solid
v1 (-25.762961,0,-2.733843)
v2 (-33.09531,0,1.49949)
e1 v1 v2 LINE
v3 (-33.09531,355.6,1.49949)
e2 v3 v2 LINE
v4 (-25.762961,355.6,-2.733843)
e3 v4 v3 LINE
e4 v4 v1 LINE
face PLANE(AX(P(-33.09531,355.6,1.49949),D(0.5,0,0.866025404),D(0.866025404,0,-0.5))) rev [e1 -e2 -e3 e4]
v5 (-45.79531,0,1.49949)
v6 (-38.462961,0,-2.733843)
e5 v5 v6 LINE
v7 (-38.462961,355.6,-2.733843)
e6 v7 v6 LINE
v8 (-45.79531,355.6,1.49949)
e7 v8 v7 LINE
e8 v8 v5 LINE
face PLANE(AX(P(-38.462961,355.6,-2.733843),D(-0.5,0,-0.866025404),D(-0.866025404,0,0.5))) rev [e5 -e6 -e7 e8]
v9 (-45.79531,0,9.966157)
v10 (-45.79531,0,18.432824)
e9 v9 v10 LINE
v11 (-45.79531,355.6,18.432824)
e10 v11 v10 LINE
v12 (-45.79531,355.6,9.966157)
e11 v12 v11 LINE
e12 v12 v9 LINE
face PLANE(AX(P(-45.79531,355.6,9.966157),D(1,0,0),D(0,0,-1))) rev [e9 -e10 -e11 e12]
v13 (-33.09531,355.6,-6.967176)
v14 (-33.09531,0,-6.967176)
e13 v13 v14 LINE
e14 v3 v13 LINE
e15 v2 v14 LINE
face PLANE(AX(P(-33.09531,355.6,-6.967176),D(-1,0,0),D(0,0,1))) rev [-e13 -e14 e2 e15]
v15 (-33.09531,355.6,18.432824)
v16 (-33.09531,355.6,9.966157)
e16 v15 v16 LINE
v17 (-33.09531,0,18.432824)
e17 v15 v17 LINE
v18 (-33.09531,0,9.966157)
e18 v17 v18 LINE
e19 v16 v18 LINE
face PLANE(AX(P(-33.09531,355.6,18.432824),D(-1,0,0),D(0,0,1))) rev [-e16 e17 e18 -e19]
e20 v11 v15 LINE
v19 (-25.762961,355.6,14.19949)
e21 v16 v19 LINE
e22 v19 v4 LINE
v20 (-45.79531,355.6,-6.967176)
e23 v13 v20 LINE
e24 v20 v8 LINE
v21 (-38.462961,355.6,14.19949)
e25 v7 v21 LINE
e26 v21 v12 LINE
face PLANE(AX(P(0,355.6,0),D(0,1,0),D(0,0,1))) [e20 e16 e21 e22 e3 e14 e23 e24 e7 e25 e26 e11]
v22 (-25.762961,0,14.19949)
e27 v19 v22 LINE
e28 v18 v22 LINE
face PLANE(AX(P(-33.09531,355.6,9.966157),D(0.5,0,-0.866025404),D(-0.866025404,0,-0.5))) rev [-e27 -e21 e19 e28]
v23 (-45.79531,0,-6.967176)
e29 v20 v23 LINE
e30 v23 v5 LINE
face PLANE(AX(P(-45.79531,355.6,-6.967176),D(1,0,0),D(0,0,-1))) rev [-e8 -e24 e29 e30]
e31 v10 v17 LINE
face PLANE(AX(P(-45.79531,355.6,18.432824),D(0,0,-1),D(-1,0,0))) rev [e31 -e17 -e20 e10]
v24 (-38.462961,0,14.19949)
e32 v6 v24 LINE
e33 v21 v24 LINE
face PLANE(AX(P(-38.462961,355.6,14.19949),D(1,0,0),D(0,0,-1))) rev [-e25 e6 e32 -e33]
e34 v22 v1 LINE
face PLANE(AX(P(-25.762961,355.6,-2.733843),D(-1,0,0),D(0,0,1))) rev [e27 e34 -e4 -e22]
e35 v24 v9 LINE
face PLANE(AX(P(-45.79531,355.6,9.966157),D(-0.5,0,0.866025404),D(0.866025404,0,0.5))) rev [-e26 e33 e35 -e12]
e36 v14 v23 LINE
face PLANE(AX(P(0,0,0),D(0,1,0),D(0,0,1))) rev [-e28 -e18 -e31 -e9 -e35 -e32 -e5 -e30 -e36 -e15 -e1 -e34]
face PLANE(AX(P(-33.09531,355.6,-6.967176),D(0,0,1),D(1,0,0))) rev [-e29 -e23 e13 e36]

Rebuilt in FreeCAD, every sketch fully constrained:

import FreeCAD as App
import Part
import Sketcher
Q = App.Units.Quantity


def add_polygon(sketch, points):
    """Adds a closed chain of lines whose ends are joined by coincident constraints."""
    first, n = sketch.GeometryCount, len(points)
    for a, b in zip(points, points[1:] + points[:1]):
        sketch.addGeometry(Part.LineSegment(App.Vector(*a, 0), App.Vector(*b, 0)), False)
    for i in range(n):
        sketch.addConstraint(Sketcher.Constraint("Coincident", first + i, 2, first + (i + 1) % n, 1))

doc = App.newDocument("Part")
body = doc.addObject("PartDesign::Body", "Body")

# Sketch on XZ plane
sketch1 = body.newObject("Sketcher::SketchObject", "Sketch")
sketch1.AttachmentSupport = (doc.getObject("XZ_Plane"), [""])
sketch1.MapMode = "FlatFace"
add_polygon(sketch1, [(-33.09531, 1.49949), (-33.09531, -6.967176), (-45.79531, -6.967176), (-45.79531, 1.49949), (-38.462961, -2.733843), (-38.462961, 14.19949), (-45.79531, 9.966157), (-45.79531, 18.432824), (-33.09531, 18.432824), (-33.09531, 9.966157), (-25.762961, 14.19949), (-25.762961, -2.733843)])  # lines 0-11
sketch1.addConstraint([
    Sketcher.Constraint("Vertical", 0),
    Sketcher.Constraint("Horizontal", 1),
    Sketcher.Constraint("Vertical", 2),
    Sketcher.Constraint("Vertical", 4),
    Sketcher.Constraint("Vertical", 6),
    Sketcher.Constraint("Horizontal", 7),
    Sketcher.Constraint("Vertical", 8),
    Sketcher.Constraint("Vertical", 10),
    Sketcher.Constraint("Parallel", 5, 9),
    Sketcher.Constraint("Parallel", 3, 11),
    Sketcher.Constraint("Horizontal", 5, 2, 8, 2),
    Sketcher.Constraint("Horizontal", 4, 2, 9, 2),
    Sketcher.Constraint("Horizontal", 3, 2, 10, 2),
    Sketcher.Constraint("Horizontal", 2, 2, 11, 2),
    Sketcher.Constraint("Vertical", 2, 2, 5, 2),
    Sketcher.Constraint("Equal", 2, 6),
    Sketcher.Constraint("Equal", 3, 5),
    Sketcher.Constraint("DistanceX", 1, 2, 1, 1, Q("0.5 in")),
    Sketcher.Constraint("Angle", 3, Q("-30 deg")),
    Sketcher.Constraint("DistanceY", 1, 2, 6, 2, Q("1 in")),
    Sketcher.Constraint("DistanceY", 2, 2, 4, 2, Q("0.5 in")),
    Sketcher.Constraint("DistanceY", 0, 2, 0, 1, 8.466667),
    Sketcher.Constraint("DistanceX", 0, 2, -1, 1, 33.09531),
    Sketcher.Constraint("DistanceY", -1, 1, 2, 2, 1.49949),
])
pad1 = body.newObject("PartDesign::Pad", "Pad")
pad1.Profile = sketch1
pad1.Length = Q("14 in")
pad1.Reversed = True

doc.recompute()
